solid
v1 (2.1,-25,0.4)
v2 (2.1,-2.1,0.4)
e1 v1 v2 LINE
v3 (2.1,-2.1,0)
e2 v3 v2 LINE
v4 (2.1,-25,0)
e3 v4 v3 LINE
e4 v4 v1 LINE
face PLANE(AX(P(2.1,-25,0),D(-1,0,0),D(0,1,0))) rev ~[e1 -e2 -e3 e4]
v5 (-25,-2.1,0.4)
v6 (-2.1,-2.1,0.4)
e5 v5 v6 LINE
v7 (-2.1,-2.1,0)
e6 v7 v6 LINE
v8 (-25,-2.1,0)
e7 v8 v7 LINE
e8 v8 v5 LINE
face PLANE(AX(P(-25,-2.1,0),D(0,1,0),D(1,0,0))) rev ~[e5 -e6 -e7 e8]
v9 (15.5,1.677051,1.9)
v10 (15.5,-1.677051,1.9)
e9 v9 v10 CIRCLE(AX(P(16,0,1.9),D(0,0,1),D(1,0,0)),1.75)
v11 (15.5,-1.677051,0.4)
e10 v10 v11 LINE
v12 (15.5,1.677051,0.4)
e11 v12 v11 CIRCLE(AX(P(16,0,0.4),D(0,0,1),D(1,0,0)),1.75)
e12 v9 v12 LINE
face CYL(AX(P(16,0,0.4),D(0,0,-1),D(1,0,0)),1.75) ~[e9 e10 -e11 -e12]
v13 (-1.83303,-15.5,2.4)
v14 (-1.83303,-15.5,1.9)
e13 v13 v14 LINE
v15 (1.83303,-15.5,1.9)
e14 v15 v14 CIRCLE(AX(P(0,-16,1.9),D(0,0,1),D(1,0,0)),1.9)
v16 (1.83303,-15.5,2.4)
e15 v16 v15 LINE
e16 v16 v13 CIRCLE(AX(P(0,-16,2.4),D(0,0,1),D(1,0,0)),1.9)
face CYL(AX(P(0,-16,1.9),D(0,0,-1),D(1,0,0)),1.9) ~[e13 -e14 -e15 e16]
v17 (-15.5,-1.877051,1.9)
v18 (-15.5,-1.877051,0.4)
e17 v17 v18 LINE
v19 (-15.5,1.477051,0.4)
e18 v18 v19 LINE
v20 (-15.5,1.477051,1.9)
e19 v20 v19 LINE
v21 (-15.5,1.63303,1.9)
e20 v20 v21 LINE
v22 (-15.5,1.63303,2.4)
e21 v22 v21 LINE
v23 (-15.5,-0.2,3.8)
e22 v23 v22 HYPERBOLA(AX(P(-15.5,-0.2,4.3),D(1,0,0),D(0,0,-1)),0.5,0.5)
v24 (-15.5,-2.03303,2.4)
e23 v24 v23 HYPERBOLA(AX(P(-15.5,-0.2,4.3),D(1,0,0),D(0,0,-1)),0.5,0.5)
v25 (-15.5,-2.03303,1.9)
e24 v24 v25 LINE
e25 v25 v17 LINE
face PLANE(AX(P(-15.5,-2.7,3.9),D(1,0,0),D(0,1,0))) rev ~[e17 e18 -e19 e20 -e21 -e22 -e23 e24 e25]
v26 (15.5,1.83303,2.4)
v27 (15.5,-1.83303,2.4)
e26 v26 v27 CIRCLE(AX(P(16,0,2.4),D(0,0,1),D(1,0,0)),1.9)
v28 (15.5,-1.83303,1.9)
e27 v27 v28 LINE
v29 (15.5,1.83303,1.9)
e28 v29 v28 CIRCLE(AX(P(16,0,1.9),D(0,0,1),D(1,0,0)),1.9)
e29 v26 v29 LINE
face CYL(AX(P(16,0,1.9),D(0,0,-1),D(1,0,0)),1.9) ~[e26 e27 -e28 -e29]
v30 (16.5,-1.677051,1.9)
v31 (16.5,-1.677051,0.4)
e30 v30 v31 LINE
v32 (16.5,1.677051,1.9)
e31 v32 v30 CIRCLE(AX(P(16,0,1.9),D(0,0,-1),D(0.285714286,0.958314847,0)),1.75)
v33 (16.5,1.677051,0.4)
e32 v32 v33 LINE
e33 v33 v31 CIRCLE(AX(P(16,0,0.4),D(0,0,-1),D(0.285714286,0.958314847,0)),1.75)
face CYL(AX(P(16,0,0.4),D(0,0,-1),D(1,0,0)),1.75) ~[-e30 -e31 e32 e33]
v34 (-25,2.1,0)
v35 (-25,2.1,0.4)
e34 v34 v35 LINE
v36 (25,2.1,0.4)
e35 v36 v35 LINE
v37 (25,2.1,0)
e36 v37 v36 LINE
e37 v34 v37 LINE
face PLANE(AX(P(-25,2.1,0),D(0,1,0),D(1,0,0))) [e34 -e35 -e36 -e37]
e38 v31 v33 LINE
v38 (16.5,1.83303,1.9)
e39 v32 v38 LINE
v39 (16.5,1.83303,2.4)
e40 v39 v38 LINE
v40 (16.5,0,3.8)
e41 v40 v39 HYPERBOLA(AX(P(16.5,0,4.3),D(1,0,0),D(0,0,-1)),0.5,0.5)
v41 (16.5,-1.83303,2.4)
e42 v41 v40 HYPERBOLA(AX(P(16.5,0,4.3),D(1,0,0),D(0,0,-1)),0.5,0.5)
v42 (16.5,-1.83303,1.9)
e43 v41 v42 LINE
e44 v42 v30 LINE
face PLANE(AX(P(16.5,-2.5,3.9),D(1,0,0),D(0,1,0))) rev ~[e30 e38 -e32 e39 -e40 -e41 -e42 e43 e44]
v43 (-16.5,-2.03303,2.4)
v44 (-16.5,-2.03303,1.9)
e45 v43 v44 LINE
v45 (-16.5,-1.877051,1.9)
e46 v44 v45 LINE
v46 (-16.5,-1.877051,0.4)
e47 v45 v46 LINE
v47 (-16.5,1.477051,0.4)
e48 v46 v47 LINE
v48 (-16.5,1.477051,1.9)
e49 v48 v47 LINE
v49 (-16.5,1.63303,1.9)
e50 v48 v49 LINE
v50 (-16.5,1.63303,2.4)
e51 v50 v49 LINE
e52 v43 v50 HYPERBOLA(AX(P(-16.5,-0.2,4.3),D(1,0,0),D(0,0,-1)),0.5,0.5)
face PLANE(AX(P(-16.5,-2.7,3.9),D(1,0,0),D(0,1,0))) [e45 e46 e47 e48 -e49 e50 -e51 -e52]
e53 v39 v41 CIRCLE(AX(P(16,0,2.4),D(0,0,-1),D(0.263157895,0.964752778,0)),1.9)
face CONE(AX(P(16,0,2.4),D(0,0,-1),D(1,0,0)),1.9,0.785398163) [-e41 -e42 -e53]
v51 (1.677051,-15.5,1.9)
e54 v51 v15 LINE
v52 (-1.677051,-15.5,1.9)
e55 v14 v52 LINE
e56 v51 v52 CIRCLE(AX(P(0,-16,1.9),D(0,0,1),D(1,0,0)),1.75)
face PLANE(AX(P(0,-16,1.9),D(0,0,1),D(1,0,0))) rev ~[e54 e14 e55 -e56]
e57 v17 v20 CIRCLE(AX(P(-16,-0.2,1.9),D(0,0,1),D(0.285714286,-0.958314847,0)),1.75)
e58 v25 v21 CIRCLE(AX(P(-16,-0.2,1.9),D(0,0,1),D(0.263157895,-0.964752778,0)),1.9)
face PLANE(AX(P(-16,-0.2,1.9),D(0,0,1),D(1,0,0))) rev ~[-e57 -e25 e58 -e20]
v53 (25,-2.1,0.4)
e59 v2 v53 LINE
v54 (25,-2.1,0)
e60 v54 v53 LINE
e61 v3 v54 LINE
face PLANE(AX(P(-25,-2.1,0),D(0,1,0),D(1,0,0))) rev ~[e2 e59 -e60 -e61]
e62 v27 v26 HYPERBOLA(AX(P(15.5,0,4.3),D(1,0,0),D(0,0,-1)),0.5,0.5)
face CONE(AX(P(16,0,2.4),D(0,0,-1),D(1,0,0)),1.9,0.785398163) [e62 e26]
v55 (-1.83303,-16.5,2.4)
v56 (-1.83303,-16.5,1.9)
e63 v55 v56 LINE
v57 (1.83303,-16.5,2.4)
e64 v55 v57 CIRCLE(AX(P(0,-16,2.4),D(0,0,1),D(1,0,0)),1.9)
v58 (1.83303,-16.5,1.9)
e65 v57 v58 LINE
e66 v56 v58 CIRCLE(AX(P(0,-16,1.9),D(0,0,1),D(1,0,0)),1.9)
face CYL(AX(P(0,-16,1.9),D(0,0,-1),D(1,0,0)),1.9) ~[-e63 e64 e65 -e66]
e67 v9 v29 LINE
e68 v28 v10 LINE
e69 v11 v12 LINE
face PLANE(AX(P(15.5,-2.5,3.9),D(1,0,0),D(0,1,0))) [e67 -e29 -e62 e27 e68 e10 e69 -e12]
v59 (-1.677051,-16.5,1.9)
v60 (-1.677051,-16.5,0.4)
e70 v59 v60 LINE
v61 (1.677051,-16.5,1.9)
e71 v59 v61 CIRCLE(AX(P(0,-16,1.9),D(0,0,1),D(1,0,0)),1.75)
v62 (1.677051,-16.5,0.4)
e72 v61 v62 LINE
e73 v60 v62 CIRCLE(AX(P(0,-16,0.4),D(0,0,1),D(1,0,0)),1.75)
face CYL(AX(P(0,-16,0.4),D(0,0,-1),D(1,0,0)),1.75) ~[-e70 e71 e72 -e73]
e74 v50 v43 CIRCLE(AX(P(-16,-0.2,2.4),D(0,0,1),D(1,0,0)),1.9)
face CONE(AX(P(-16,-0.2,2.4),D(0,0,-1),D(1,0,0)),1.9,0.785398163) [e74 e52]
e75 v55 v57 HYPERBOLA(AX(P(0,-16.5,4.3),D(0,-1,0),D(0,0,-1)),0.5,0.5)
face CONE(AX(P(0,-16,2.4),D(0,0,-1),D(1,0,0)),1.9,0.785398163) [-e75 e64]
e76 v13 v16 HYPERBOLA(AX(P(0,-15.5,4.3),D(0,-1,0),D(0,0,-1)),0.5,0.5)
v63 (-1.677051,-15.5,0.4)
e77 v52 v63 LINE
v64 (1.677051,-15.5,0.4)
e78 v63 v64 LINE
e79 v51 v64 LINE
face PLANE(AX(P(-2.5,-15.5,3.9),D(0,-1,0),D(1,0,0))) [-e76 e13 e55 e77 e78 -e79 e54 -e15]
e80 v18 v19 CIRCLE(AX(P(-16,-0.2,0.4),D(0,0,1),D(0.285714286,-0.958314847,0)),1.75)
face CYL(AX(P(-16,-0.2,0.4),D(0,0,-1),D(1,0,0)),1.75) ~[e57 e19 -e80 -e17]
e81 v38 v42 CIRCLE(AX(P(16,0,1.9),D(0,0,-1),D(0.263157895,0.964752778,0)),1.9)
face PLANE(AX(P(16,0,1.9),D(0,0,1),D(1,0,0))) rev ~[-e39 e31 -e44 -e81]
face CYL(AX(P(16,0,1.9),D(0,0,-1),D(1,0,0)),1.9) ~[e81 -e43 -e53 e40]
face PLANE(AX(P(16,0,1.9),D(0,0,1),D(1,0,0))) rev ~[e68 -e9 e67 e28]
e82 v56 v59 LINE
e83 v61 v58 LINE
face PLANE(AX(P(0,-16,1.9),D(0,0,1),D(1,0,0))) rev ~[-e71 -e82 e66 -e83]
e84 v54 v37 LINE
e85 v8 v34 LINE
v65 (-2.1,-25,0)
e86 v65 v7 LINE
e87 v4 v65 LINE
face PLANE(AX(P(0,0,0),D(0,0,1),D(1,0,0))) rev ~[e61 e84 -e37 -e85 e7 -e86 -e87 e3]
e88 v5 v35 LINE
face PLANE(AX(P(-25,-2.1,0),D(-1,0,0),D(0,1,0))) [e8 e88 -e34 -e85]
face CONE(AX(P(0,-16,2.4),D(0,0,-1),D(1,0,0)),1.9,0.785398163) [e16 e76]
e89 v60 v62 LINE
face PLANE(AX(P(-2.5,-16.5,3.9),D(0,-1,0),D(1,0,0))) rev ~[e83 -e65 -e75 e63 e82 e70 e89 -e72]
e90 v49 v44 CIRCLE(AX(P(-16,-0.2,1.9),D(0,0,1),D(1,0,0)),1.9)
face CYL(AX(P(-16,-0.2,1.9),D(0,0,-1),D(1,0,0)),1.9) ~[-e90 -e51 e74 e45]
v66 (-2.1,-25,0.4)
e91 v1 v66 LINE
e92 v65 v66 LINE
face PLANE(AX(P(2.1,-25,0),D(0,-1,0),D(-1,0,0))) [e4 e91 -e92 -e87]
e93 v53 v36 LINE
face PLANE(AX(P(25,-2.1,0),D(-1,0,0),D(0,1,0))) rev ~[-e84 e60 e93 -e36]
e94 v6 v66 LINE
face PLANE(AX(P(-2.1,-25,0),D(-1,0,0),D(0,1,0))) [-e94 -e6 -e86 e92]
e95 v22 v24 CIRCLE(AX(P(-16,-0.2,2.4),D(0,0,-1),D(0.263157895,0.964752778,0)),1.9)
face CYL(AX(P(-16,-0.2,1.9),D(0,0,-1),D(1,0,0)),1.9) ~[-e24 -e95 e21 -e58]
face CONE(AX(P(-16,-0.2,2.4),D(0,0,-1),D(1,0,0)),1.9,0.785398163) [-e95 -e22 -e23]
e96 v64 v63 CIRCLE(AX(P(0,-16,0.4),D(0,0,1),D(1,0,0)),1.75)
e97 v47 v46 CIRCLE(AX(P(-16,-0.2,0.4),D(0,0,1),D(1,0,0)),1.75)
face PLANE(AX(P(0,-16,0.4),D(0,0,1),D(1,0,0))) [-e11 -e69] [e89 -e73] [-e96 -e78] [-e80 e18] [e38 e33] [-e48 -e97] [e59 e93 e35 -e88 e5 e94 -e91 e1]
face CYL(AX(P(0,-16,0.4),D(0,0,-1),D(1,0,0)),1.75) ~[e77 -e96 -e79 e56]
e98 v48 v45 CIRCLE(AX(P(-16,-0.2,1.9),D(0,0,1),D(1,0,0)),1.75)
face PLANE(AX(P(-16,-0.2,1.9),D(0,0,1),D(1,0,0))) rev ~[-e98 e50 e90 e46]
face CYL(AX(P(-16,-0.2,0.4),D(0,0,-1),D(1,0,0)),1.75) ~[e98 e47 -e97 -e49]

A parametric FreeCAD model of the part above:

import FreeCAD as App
import Part
import Sketcher

V = App.Vector
Q = App.Units.Quantity


def edges_at(feature, points):
    """Names of the edges that pass closest to the given points."""
    edges = feature.Shape.Edges
    near = lambda p: min(range(len(edges)), key=lambda i: edges[i].distToShape(Part.Vertex(*p))[0])
    return sorted({f"Edge{near(p) + 1}" for p in points})


def add_polygon(sketch, points):
    """Adds a closed chain of lines whose ends are joined by coincident constraints."""
    first, n = sketch.GeometryCount, len(points)
    for a, b in zip(points, points[1:] + points[:1]):
        sketch.addGeometry(Part.LineSegment(App.Vector(*a, 0), App.Vector(*b, 0)), False)
    for i in range(n):
        sketch.addConstraint(Sketcher.Constraint("Coincident", first + i, 2, first + (i + 1) % n, 1))

doc = App.newDocument("Part")
body = doc.addObject("PartDesign::Body", "Body")

# Sketch on XY plane
sketch1 = body.newObject("Sketcher::SketchObject", "Sketch")
sketch1.AttachmentSupport = (doc.getObject("XY_Plane"), [""])
sketch1.MapMode = "FlatFace"
add_polygon(sketch1, [(-25, 2.1), (-25, -2.1), (25, -2.1), (25, 2.1)])  # lines 0-3
sketch1.addConstraint(Sketcher.Constraint("Vertical", 0))
sketch1.addConstraint(Sketcher.Constraint("Horizontal", 1))
sketch1.addConstraint(Sketcher.Constraint("Vertical", 2))
sketch1.addConstraint(Sketcher.Constraint("Horizontal", 3))
sketch1.addConstraint(Sketcher.Constraint("Symmetric", 0, 2, 2, 2, -1, 1))
sketch1.addConstraint(Sketcher.Constraint("DistanceX", 1, 1, 1, 2, Q("50 mm")))
sketch1.addConstraint(Sketcher.Constraint("DistanceY", 0, 2, 0, 1, Q("4.2 mm")))
pad1 = body.newObject("PartDesign::Pad", "Pad")
pad1.Profile = sketch1
pad1.Length = 0.4

# Sketch on XY plane
sketch2 = body.newObject("Sketcher::SketchObject", "Sketch001")
sketch2.AttachmentSupport = (doc.getObject("XY_Plane"), [""])
sketch2.MapMode = "FlatFace"
sketch2.AttachmentOffset = App.Placement(V(0, 0, 0.4), App.Rotation())
sketch2.addGeometry(Part.Circle(V(-16, -0.2, 0), V(0, 0, 1), 1.8), False)
sketch2.addGeometry(Part.Circle(V(16, 0, 0), V(0, 0, 1), 1.8), False)
sketch2.addConstraint(Sketcher.Constraint("Equal", 0, 1))
sketch2.addConstraint(Sketcher.Constraint("PointOnObject", 1, 3, -1))
sketch2.addConstraint(Sketcher.Constraint("Diameter", 0, Q("3.5 mm")))
sketch2.addConstraint(Sketcher.Constraint("DistanceX", 0, 3, -1, 1, Q("16 mm")))
sketch2.addConstraint(Sketcher.Constraint("DistanceX", -1, 1, 1, 3, Q("16 mm")))
sketch2.addConstraint(Sketcher.Constraint("DistanceY", 0, 3, -1, 1, Q("0.2 mm")))
pad2 = body.newObject("PartDesign::Pad", "Pad001")
pad2.Profile = sketch2
pad2.Length = 1.5

# Sketch on XY plane
sketch3 = body.newObject("Sketcher::SketchObject", "Sketch002")
sketch3.AttachmentSupport = (doc.getObject("XY_Plane"), [""])
sketch3.MapMode = "FlatFace"
sketch3.AttachmentOffset = App.Placement(V(0, 0, 1.9), App.Rotation())
sketch3.addGeometry(Part.Circle(V(-16, -0.2, 0), V(0, 0, 1), 1.9), False)
sketch3.addGeometry(Part.Circle(V(16, 0, 0), V(0, 0, 1), 1.9), False)
sketch3.addConstraint(Sketcher.Constraint("Equal", 0, 1))
sketch3.addConstraint(Sketcher.Constraint("PointOnObject", 1, 3, -1))
sketch3.addConstraint(Sketcher.Constraint("Diameter", 0, Q("3.8 mm")))
sketch3.addConstraint(Sketcher.Constraint("DistanceX", 0, 3, -1, 1, Q("16 mm")))
sketch3.addConstraint(Sketcher.Constraint("DistanceX", -1, 1, 1, 3, Q("16 mm")))
sketch3.addConstraint(Sketcher.Constraint("DistanceY", 0, 3, -1, 1, Q("0.2 mm")))
pad3 = body.newObject("PartDesign::Pad", "Pad002")
pad3.Profile = sketch3
pad3.Length = 2
doc.recompute()

chamfer = body.newObject("PartDesign::Chamfer", "Chamfer")
chamfer.Base = (pad3, edges_at(pad3, [(-17.9, -0.2, 3.9), (14.1, 0, 3.9)]))
chamfer.Size = 1.5

# Sketch on XY plane
sketch4 = body.newObject("Sketcher::SketchObject", "Sketch003")
sketch4.AttachmentSupport = (doc.getObject("XY_Plane"), [""])
sketch4.MapMode = "FlatFace"
sketch4.AttachmentOffset = App.Placement(V(0, 0, 3.9), App.Rotation())
add_polygon(sketch4, [(-16.5, 2.3), (-16.5, -2.7), (-15.5, -2.7), (-15.5, 2.3)])  # lines 0-3
add_polygon(sketch4, [(15.5, 2.5), (15.5, -2.5), (16.5, -2.5), (16.5, 2.5)])  # lines 4-7
sketch4.addConstraint(Sketcher.Constraint("Vertical", 0))
sketch4.addConstraint(Sketcher.Constraint("Horizontal", 1))
sketch4.addConstraint(Sketcher.Constraint("Vertical", 2))
sketch4.addConstraint(Sketcher.Constraint("Horizontal", 3))
sketch4.addConstraint(Sketcher.Constraint("Vertical", 4))
sketch4.addConstraint(Sketcher.Constraint("Horizontal", 5))
sketch4.addConstraint(Sketcher.Constraint("Vertical", 6))
sketch4.addConstraint(Sketcher.Constraint("Horizontal", 7))
sketch4.addConstraint(Sketcher.Constraint("Equal", 3, 5))
sketch4.addConstraint(Sketcher.Constraint("Equal", 2, 4))
sketch4.addConstraint(Sketcher.Constraint("DistanceX", 1, 1, 1, 2, Q("1 mm")))
sketch4.addConstraint(Sketcher.Constraint("DistanceY", 0, 2, 0, 1, Q("5 mm")))
sketch4.addConstraint(Sketcher.Constraint("DistanceX", 1, 2, 4, 2, Q("31 mm")))
sketch4.addConstraint(Sketcher.Constraint("DistanceX", 0, 2, -1, 1, Q("16.5 mm")))
sketch4.addConstraint(Sketcher.Constraint("DistanceY", 0, 2, -1, 1, Q("2.7 mm")))
sketch4.addConstraint(Sketcher.Constraint("DistanceY", 4, 2, -1, 1, Q("2.5 mm")))
pocket1 = body.newObject("PartDesign::Pocket", "Pocket")
pocket1.Profile = sketch4
pocket1.Length = 3.5

# Sketch on XY plane
sketch5 = body.newObject("Sketcher::SketchObject", "Sketch004")
sketch5.AttachmentSupport = (doc.getObject("XY_Plane"), [""])
sketch5.MapMode = "FlatFace"
add_polygon(sketch5, [(2.1, -2.1), (2.1, -25), (-2.1, -25), (-2.1, -2.1)])  # lines 0-3
sketch5.addConstraint(Sketcher.Constraint("Vertical", 0))
sketch5.addConstraint(Sketcher.Constraint("Horizontal", 1))
sketch5.addConstraint(Sketcher.Constraint("Vertical", 2))
sketch5.addConstraint(Sketcher.Constraint("Horizontal", 3))
sketch5.addConstraint(Sketcher.Constraint("DistanceX", 1, 2, 1, 1, Q("4.2 mm")))
sketch5.addConstraint(Sketcher.Constraint("DistanceY", 0, 2, 0, 1, Q("22.9 mm")))
sketch5.addConstraint(Sketcher.Constraint("DistanceY", 0, 2, -1, 1, Q("25 mm")))
sketch5.addConstraint(Sketcher.Constraint("DistanceX", -1, 1, 0, 2, Q("2.1 mm")))
pad4 = body.newObject("PartDesign::Pad", "Pad003")
pad4.Profile = sketch5
pad4.Length = 0.4

# Sketch on XY plane
sketch6 = body.newObject("Sketcher::SketchObject", "Sketch005")
sketch6.AttachmentSupport = (doc.getObject("XY_Plane"), [""])
sketch6.MapMode = "FlatFace"
sketch6.AttachmentOffset = App.Placement(V(0, 0, 0.4), App.Rotation())
sketch6.addGeometry(Part.Circle(V(0, -16, 0), V(0, 0, 1), 1.8), False)
sketch6.addConstraint(Sketcher.Constraint("PointOnObject", 0, 3, -2))
sketch6.addConstraint(Sketcher.Constraint("Diameter", 0, Q("3.5 mm")))
sketch6.addConstraint(Sketcher.Constraint("DistanceY", 0, 3, -1, 1, Q("16 mm")))
pad5 = body.newObject("PartDesign::Pad", "Pad004")
pad5.Profile = sketch6
pad5.Length = 1.5

# Sketch on XY plane
sketch7 = body.newObject("Sketcher::SketchObject", "Sketch006")
sketch7.AttachmentSupport = (doc.getObject("XY_Plane"), [""])
sketch7.MapMode = "FlatFace"
sketch7.AttachmentOffset = App.Placement(V(0, 0, 1.9), App.Rotation())
sketch7.addGeometry(Part.Circle(V(0, -16, 0), V(0, 0, 1), 1.9), False)
sketch7.addConstraint(Sketcher.Constraint("PointOnObject", 0, 3, -2))
sketch7.addConstraint(Sketcher.Constraint("Diameter", 0, Q("3.8 mm")))
sketch7.addConstraint(Sketcher.Constraint("DistanceY", 0, 3, -1, 1, Q("16 mm")))
pad6 = body.newObject("PartDesign::Pad", "Pad005")
pad6.Profile = sketch7
pad6.Length = 2
doc.recompute()

chamfer2 = body.newObject("PartDesign::Chamfer", "Chamfer001")
chamfer2.Base = (pad6, edges_at(pad6, [(-1.9, -16, 3.9)]))
chamfer2.Size = 1.5

# Sketch on XY plane
sketch8 = body.newObject("Sketcher::SketchObject", "Sketch007")
sketch8.AttachmentSupport = (doc.getObject("XY_Plane"), [""])
sketch8.MapMode = "FlatFace"
sketch8.AttachmentOffset = App.Placement(V(0, 0, 3.9), App.Rotation())
add_polygon(sketch8, [(-2.5, -15.5), (-2.5, -16.5), (2.5, -16.5), (2.5, -15.5)])  # lines 0-3
sketch8.addConstraint(Sketcher.Constraint("Vertical", 0))
sketch8.addConstraint(Sketcher.Constraint("Horizontal", 1))
sketch8.addConstraint(Sketcher.Constraint("Vertical", 2))
sketch8.addConstraint(Sketcher.Constraint("Horizontal", 3))
sketch8.addConstraint(Sketcher.Constraint("DistanceX", 1, 1, 1, 2, Q("5 mm")))
sketch8.addConstraint(Sketcher.Constraint("DistanceY", 0, 2, 0, 1, Q("1 mm")))
sketch8.addConstraint(Sketcher.Constraint("DistanceX", 0, 2, -1, 1, Q("2.5 mm")))
sketch8.addConstraint(Sketcher.Constraint("DistanceY", 0, 2, -1, 1, Q("16.5 mm")))
pocket2 = body.newObject("PartDesign::Pocket", "Pocket001")
pocket2.Profile = sketch8
pocket2.Length = 3.5

doc.recompute()
